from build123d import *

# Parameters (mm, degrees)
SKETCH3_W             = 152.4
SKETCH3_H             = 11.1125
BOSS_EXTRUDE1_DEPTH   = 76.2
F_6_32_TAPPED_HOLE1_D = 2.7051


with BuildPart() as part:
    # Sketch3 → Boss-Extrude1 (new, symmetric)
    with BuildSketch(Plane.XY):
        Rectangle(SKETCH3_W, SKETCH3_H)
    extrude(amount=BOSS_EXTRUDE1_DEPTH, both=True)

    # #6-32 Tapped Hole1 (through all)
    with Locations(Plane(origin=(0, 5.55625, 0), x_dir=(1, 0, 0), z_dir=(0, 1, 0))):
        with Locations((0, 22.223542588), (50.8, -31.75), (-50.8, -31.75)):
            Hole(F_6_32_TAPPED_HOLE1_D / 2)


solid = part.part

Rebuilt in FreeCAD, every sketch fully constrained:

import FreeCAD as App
import Part
import Sketcher

V = App.Vector
Q = App.Units.Quantity

doc = App.newDocument("Part")
body = doc.addObject("PartDesign::Body", "Body")

sketch1 = body.newObject("Sketcher::SketchObject", "Sketch")
sketch1.AttachmentSupport = (doc.getObject("XY_Plane"), [""])
sketch1.MapMode = "FlatFace"
sketch1.addGeometry([
    Part.LineSegment(V(-76, 6, 0), V(-76, -6, 0)),
    Part.LineSegment(V(-76, -6, 0), V(76, -6, 0)),
    Part.LineSegment(V(76, -6, 0), V(76, 6, 0)),
    Part.LineSegment(V(76, 6, 0), V(-76, 6, 0)),
], False)
sketch1.addConstraint([
    Sketcher.Constraint("Coincident", 0, 2, 1, 1),
    Sketcher.Constraint("Coincident", 1, 2, 2, 1),
    Sketcher.Constraint("Coincident", 2, 2, 3, 1),
    Sketcher.Constraint("Coincident", 3, 2, 0, 1),
    Sketcher.Constraint("Vertical", 0),
    Sketcher.Constraint("Horizontal", 1),
    Sketcher.Constraint("Vertical", 2),
    Sketcher.Constraint("Horizontal", 3),
    Sketcher.Constraint("Symmetric", 0, 2, 2, 2, -1, 1),
    Sketcher.Constraint("DistanceX", 1, 1, 1, 2, Q("6 in")),
    Sketcher.Constraint("DistanceY", 0, 2, 0, 1, Q("0.4375 in")),
])
pad1 = body.newObject("PartDesign::Pad", "Pad")
pad1.Profile = sketch1
pad1.Length = Q("6 in")
pad1.Midplane = True

sketch2 = body.newObject("Sketcher::SketchObject", "Sketch001")
sketch2.AttachmentSupport = (doc.getObject("XZ_Plane"), [""])
sketch2.MapMode = "FlatFace"
sketch2.AttachmentOffset = App.Placement(V(0, 0, -0.21875 * 25.4), App.Rotation())
sketch2.addGeometry([
    Part.Circle(V(0, -22.2, 0), V(0, 0, 1), 1.4),
    Part.Circle(V(50.8, 31.8, 0), V(0, 0, 1), 1.4),
    Part.Circle(V(-50.8, 31.8, 0), V(0, 0, 1), 1.4),
], False)
sketch2.addConstraint([
    Sketcher.Constraint("Equal", 0, 1),
    Sketcher.Constraint("Equal", 1, 2),
    Sketcher.Constraint("Symmetric", 1, 3, 2, 3, -2),
    Sketcher.Constraint("PointOnObject", 0, 3, -2),
    Sketcher.Constraint("DistanceX", -1, 1, 1, 3, Q("2 in")),
    Sketcher.Constraint("Diameter", 0, Q("0.1065 in")),
    Sketcher.Constraint("DistanceY", -1, 1, 1, 3, Q("1.25 in")),
    Sketcher.Constraint("DistanceY", 0, 3, -1, 1, 22.223543),
])
doc.recompute()
hole = body.newObject("PartDesign::Hole", "Hole")
hole.Profile = sketch2
hole.ThreadType = "None"
hole.Diameter = Q("0.1065 in")
hole.DepthType = "ThroughAll"
hole.Reversed = True

doc.recompute()
